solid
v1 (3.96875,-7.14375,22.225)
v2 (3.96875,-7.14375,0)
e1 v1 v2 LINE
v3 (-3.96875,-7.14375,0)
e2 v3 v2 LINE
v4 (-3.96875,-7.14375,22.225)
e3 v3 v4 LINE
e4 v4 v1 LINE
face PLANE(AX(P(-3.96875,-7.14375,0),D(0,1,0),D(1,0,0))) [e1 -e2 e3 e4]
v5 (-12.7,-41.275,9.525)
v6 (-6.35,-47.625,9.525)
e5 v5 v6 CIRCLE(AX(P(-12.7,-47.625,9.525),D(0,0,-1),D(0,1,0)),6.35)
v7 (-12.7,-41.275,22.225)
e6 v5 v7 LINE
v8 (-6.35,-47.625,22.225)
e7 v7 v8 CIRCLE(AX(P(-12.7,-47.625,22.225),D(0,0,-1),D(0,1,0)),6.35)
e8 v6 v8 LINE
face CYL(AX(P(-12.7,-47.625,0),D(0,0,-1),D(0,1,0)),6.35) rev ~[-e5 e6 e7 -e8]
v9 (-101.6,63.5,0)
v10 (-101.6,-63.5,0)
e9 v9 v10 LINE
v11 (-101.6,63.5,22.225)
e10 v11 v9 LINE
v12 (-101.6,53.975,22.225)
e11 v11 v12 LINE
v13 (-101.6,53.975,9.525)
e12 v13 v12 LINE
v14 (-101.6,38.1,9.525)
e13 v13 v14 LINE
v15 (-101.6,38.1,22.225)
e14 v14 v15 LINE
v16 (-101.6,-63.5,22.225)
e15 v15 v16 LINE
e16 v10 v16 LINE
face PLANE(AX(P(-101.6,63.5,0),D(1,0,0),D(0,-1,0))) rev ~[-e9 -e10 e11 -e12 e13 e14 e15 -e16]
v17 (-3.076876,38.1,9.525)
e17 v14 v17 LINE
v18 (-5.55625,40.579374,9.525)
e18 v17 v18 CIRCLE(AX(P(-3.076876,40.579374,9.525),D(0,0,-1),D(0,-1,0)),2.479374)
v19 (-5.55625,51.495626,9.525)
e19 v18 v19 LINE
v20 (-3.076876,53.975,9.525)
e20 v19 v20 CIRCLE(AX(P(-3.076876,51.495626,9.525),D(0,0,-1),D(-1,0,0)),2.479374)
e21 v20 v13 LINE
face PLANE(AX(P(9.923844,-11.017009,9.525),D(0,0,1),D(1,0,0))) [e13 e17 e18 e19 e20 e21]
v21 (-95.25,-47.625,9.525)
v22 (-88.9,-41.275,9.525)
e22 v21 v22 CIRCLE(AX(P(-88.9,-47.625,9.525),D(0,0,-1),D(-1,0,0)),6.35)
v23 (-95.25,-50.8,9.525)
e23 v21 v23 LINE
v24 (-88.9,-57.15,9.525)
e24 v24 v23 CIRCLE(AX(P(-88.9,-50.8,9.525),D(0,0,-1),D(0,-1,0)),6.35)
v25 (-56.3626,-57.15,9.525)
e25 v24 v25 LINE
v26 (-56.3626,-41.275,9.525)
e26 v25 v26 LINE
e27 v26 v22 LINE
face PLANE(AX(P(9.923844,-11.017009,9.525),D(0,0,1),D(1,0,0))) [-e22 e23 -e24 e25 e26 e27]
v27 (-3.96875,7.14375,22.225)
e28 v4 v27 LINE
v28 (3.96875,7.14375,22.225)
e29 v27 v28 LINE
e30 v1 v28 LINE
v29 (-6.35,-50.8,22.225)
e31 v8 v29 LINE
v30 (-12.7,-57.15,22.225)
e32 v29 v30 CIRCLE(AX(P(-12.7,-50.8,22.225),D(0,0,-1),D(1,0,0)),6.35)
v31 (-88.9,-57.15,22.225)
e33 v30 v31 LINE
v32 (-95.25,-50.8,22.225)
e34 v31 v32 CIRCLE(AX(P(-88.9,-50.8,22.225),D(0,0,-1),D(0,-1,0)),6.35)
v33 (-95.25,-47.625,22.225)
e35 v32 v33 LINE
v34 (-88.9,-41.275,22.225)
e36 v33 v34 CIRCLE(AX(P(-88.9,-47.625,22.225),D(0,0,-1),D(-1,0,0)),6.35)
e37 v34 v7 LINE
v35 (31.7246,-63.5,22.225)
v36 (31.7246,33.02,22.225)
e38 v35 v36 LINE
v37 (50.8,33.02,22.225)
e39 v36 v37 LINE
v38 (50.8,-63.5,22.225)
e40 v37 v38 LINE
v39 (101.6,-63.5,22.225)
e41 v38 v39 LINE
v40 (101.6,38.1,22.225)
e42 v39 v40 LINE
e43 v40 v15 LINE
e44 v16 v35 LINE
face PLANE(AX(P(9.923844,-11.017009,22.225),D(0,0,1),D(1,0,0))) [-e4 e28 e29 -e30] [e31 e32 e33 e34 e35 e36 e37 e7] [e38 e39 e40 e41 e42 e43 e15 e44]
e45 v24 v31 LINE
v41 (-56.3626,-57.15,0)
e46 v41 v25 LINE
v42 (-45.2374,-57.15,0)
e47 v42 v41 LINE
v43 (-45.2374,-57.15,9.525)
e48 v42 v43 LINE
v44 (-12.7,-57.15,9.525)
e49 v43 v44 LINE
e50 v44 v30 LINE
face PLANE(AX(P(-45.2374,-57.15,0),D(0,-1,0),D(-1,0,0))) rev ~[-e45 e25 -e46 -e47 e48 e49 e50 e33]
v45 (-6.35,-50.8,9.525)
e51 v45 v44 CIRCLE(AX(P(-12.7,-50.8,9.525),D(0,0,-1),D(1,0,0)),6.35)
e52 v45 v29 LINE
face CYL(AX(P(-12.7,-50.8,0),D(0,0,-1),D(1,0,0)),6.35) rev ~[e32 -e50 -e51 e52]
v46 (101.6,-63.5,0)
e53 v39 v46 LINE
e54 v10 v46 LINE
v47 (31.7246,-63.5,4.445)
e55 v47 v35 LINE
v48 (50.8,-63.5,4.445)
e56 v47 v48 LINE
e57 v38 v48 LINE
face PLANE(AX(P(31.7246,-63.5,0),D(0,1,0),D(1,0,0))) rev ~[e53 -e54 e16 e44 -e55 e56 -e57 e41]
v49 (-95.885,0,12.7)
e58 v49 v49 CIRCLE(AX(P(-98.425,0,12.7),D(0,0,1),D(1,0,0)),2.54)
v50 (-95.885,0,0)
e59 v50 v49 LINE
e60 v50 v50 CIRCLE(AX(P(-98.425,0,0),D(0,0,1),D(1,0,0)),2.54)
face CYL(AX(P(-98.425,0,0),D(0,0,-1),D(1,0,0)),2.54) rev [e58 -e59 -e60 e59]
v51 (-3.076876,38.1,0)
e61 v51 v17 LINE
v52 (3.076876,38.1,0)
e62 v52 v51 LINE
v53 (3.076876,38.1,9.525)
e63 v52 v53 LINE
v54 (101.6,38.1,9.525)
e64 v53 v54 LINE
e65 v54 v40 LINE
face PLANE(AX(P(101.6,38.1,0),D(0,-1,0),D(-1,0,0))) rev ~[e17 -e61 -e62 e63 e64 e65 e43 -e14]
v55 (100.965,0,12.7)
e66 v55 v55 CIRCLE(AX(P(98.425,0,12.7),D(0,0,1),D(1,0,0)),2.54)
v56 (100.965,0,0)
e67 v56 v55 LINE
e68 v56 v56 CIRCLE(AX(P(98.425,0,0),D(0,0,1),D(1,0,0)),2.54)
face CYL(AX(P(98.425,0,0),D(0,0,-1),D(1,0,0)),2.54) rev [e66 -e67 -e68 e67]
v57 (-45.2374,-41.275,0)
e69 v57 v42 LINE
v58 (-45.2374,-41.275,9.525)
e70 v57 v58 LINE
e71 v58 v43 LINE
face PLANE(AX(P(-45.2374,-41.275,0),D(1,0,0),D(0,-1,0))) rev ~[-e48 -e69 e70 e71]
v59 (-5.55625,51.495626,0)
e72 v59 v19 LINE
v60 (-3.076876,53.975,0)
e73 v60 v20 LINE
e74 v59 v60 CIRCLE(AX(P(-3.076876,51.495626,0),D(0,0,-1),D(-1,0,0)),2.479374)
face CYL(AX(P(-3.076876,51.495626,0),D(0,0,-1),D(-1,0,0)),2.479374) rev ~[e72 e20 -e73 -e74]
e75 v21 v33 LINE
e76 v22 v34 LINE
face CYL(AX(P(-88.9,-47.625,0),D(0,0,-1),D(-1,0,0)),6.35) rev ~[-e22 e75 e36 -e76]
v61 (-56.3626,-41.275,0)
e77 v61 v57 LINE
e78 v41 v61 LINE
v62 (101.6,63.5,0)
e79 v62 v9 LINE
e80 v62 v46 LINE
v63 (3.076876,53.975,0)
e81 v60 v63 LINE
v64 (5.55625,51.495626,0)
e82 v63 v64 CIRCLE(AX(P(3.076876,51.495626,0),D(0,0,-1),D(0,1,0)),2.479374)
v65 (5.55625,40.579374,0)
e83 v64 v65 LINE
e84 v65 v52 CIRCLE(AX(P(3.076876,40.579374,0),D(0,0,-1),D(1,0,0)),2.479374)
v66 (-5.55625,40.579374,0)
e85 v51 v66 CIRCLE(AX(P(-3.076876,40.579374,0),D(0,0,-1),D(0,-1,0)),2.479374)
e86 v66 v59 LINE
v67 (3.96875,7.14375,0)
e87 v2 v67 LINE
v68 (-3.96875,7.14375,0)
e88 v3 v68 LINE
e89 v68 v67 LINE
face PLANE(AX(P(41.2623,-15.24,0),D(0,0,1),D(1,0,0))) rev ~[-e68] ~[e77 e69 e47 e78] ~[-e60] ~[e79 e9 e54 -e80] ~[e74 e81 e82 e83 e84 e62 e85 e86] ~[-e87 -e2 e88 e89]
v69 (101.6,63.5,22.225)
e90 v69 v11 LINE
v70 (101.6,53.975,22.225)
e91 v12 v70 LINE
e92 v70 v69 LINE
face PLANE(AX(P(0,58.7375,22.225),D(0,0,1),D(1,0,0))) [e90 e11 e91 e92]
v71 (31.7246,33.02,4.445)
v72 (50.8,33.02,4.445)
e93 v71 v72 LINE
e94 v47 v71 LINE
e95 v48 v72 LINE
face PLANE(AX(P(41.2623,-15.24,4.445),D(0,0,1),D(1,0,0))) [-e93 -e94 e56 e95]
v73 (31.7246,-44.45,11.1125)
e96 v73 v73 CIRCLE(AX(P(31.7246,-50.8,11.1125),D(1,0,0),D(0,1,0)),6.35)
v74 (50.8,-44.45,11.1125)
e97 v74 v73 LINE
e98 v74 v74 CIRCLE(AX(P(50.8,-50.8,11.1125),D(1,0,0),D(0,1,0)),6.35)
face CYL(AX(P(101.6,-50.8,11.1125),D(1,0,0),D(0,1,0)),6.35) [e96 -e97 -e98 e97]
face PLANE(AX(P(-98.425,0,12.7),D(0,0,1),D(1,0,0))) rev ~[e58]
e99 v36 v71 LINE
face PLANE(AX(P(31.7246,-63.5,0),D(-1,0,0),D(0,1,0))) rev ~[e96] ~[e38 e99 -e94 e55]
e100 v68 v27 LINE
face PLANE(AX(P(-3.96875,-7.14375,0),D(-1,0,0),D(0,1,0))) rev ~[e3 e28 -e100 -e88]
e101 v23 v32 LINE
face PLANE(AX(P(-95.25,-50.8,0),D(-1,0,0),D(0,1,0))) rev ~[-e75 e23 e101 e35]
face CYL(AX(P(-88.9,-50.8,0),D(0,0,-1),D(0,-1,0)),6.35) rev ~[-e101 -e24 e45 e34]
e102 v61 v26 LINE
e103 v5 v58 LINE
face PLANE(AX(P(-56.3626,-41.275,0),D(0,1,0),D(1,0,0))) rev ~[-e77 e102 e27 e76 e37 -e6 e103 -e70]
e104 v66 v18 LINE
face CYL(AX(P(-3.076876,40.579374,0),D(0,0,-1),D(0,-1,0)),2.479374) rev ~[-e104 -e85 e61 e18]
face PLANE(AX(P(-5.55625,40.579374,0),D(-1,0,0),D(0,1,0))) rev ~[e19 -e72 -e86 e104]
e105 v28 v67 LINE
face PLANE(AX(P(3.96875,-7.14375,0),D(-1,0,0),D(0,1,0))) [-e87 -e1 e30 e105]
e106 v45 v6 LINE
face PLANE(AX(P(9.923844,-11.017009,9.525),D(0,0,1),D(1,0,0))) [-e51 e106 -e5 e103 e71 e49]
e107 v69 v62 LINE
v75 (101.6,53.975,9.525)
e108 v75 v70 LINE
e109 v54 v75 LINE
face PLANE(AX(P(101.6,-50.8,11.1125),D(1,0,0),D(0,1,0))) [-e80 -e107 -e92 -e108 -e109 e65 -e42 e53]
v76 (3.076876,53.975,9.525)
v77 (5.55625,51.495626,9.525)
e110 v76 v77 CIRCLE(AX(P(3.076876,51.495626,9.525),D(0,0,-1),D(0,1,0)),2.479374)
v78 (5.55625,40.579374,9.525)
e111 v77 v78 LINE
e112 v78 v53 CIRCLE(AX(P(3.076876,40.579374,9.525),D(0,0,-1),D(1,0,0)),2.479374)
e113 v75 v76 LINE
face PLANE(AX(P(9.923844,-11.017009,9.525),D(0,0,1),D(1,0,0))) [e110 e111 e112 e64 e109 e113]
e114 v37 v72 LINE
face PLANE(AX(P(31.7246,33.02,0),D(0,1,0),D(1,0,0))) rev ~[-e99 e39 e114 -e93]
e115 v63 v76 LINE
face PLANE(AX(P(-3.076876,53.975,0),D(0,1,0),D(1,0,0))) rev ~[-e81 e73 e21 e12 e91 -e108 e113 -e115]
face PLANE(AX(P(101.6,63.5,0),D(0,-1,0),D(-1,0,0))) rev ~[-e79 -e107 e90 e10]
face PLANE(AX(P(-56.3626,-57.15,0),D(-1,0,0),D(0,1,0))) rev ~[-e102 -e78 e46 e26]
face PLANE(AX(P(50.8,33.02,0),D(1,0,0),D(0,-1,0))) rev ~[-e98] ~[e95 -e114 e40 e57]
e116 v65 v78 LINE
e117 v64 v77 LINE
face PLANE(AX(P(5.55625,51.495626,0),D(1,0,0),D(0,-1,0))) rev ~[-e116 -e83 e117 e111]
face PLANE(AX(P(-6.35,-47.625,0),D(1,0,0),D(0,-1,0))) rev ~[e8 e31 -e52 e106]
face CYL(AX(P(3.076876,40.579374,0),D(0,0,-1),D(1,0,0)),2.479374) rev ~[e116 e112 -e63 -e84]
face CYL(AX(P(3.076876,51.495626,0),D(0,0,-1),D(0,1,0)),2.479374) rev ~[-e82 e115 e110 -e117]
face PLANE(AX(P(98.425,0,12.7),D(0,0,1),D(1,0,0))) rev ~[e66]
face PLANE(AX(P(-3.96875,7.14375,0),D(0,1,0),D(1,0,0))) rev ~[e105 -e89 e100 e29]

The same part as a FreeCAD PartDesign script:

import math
import FreeCAD as App
import Part
import Sketcher
Q = App.Units.Quantity


def add_polygon(sketch, points):
    """Adds a closed chain of lines whose ends are joined by coincident constraints."""
    first, n = sketch.GeometryCount, len(points)
    for a, b in zip(points, points[1:] + points[:1]):
        sketch.addGeometry(Part.LineSegment(App.Vector(*a, 0), App.Vector(*b, 0)), False)
    for i in range(n):
        sketch.addConstraint(Sketcher.Constraint("Coincident", first + i, 2, first + (i + 1) % n, 1))

doc = App.newDocument("Part")
body = doc.addObject("PartDesign::Body", "Body")

# Sketch on XY plane
sketch1 = body.newObject("Sketcher::SketchObject", "Sketch")
sketch1.AttachmentSupport = (doc.getObject("XY_Plane"), [""])
sketch1.MapMode = "FlatFace"
add_polygon(sketch1, [(-101.6, -63.5), (31.7, -63.5), (31.7, 33), (50.8, 33), (50.8, -63.5), (101.6, -63.5), (101.6, 63.5), (-101.6, 63.5)])  # lines 0-7
sketch1.addGeometry(Part.LineSegment(App.Vector(3.1, 38.1, 0), App.Vector(-3.1, 38.1, 0)), False)  # 8
sketch1.addGeometry(Part.ArcOfCircle(Part.Circle(App.Vector(-3.1, 40.6, 0), App.Vector(0, 0, 1), 2.5), math.radians(180), math.radians(270)), False)  # 9
sketch1.addGeometry(Part.LineSegment(App.Vector(-5.6, 40.6, 0), App.Vector(-5.6, 51.5, 0)), False)  # 10
sketch1.addGeometry(Part.ArcOfCircle(Part.Circle(App.Vector(-3.1, 51.5, 0), App.Vector(0, 0, 1), 2.5), math.radians(90), math.radians(180)), False)  # 11
sketch1.addGeometry(Part.LineSegment(App.Vector(-3.1, 54, 0), App.Vector(3.1, 54, 0)), False)  # 12
sketch1.addGeometry(Part.ArcOfCircle(Part.Circle(App.Vector(3.1, 51.5, 0), App.Vector(0, 0, 1), 2.5), math.radians(0), math.radians(90)), False)  # 13
sketch1.addGeometry(Part.LineSegment(App.Vector(5.6, 51.5, 0), App.Vector(5.6, 40.6, 0)), False)  # 14
sketch1.addGeometry(Part.ArcOfCircle(Part.Circle(App.Vector(3.1, 40.6, 0), App.Vector(0, 0, 1), 2.5), math.radians(-90), math.radians(0)), False)  # 15
add_polygon(sketch1, [(-45.2, -57.1), (-56.4, -57.1), (-56.4, -41.3), (-45.2, -41.3)])  # lines 16-19
add_polygon(sketch1, [(4, -7.1), (-4, -7.1), (-4, 7.1), (4, 7.1)])  # lines 20-23
sketch1.addConstraint([
    Sketcher.Constraint("Tangent", 8, 2, 9, 2),
    Sketcher.Constraint("Tangent", 9, 1, 10, 1),
    Sketcher.Constraint("Tangent", 10, 2, 11, 2),
    Sketcher.Constraint("Tangent", 11, 1, 12, 1),
    Sketcher.Constraint("Tangent", 12, 2, 13, 2),
    Sketcher.Constraint("Tangent", 13, 1, 14, 1),
    Sketcher.Constraint("Tangent", 14, 2, 15, 2),
    Sketcher.Constraint("Tangent", 15, 1, 8, 1),
    Sketcher.Constraint("Horizontal", 0),
    Sketcher.Constraint("Vertical", 1),
    Sketcher.Constraint("Horizontal", 2),
    Sketcher.Constraint("Vertical", 3),
    Sketcher.Constraint("Horizontal", 4),
    Sketcher.Constraint("Vertical", 5),
    Sketcher.Constraint("Horizontal", 6),
    Sketcher.Constraint("Vertical", 7),
    Sketcher.Constraint("Horizontal", 8),
    Sketcher.Constraint("Vertical", 10),
    Sketcher.Constraint("Horizontal", 12),
    Sketcher.Constraint("Vertical", 14),
    Sketcher.Constraint("Horizontal", 16),
    Sketcher.Constraint("Vertical", 17),
    Sketcher.Constraint("Horizontal", 18),
    Sketcher.Constraint("Vertical", 19),
    Sketcher.Constraint("Horizontal", 20),
    Sketcher.Constraint("Vertical", 21),
    Sketcher.Constraint("Horizontal", 22),
    Sketcher.Constraint("Vertical", 23),
    Sketcher.Constraint("Equal", 9, 11),
    Sketcher.Constraint("Equal", 11, 13),
    Sketcher.Constraint("Equal", 13, 15),
    Sketcher.Constraint("Symmetric", 4, 2, 6, 2, -1, 1),
    Sketcher.Constraint("Symmetric", 20, 2, 22, 2, -1, 1),
    Sketcher.Constraint("Horizontal", 0, 2, 3, 2),
    Sketcher.Constraint("DistanceX", 4, 1, 4, 2, Q("2 in")),
    Sketcher.Constraint("DistanceX", 6, 2, 6, 1, Q("8 in")),
    Sketcher.Constraint("DistanceY", 5, 1, 5, 2, Q("5 in")),
    Sketcher.Constraint("DistanceY", 1, 1, 1, 2, Q("3.8 in")),
    Sketcher.Constraint("DistanceY", -1, 1, 8, 2, Q("1.5 in")),
    Sketcher.Constraint("DistanceX", 0, 1, 0, 2, Q("5.249 in")),
    Sketcher.Constraint("DistanceX", 16, 2, 16, 1, Q("0.438 in")),
    Sketcher.Constraint("DistanceX", 20, 2, 20, 1, Q("0.3125 in")),
    Sketcher.Constraint("DistanceY", 17, 1, 17, 2, Q("0.625 in")),
    Sketcher.Constraint("DistanceY", 21, 1, 21, 2, Q("0.5625 in")),
    Sketcher.Constraint("DistanceY", 16, 2, -1, 1, Q("2.25 in")),
    Sketcher.Constraint("DistanceX", 18, 2, 0, 2, Q("3.03 in")),
    Sketcher.Constraint("DistanceX", 9, 1, -1, 1, Q("0.21875 in")),
    Sketcher.Constraint("DistanceY", -1, 1, 11, 1, Q("2.125 in")),
    Sketcher.Constraint("DistanceX", -1, 1, 13, 1, Q("0.21875 in")),
    Sketcher.Constraint("Radius", 9, Q("2.479374 mm")),
])
pad1 = body.newObject("PartDesign::Pad", "Pad")
pad1.Profile = sketch1
pad1.Length = Q("0.375 in")

# Sketch on XY plane
sketch2 = body.newObject("Sketcher::SketchObject", "Sketch001")
sketch2.AttachmentSupport = (doc.getObject("XY_Plane"), [""])
sketch2.MapMode = "FlatFace"
add_polygon(sketch2, [(-101.6, 63.5), (-101.6, 54), (101.6, 54), (101.6, 63.5)])  # lines 0-3
add_polygon(sketch2, [(-101.6, 38.1), (-101.6, -63.5), (31.7, -63.5), (31.7, 33), (50.8, 33), (50.8, -63.5), (101.6, -63.5), (101.6, 38.1)])  # lines 4-11
sketch2.addGeometry(Part.LineSegment(App.Vector(-12.7, -57.1, 0), App.Vector(-88.9, -57.1, 0)), False)  # 12
sketch2.addGeometry(Part.ArcOfCircle(Part.Circle(App.Vector(-88.9, -50.8, 0), App.Vector(0, 0, 1), 6.3), math.radians(180), math.radians(270)), False)  # 13
sketch2.addGeometry(Part.LineSegment(App.Vector(-95.2, -50.8, 0), App.Vector(-95.2, -47.6, 0)), False)  # 14
sketch2.addGeometry(Part.ArcOfCircle(Part.Circle(App.Vector(-88.9, -47.6, 0), App.Vector(0, 0, 1), 6.3), math.radians(90), math.radians(180)), False)  # 15
sketch2.addGeometry(Part.LineSegment(App.Vector(-88.9, -41.3, 0), App.Vector(-12.7, -41.3, 0)), False)  # 16
sketch2.addGeometry(Part.ArcOfCircle(Part.Circle(App.Vector(-12.7, -47.6, 0), App.Vector(0, 0, 1), 6.3), math.radians(0), math.radians(90)), False)  # 17
sketch2.addGeometry(Part.LineSegment(App.Vector(-6.3, -47.6, 0), App.Vector(-6.3, -50.8, 0)), False)  # 18
sketch2.addGeometry(Part.ArcOfCircle(Part.Circle(App.Vector(-12.7, -50.8, 0), App.Vector(0, 0, 1), 6.3), math.radians(-90), math.radians(0)), False)  # 19
add_polygon(sketch2, [(4, -7.1), (-4, -7.1), (-4, 7.1), (4, 7.1)])  # lines 20-23
sketch2.addConstraint([
    Sketcher.Constraint("Tangent", 12, 2, 13, 2),
    Sketcher.Constraint("Tangent", 13, 1, 14, 1),
    Sketcher.Constraint("Tangent", 14, 2, 15, 2),
    Sketcher.Constraint("Tangent", 15, 1, 16, 1),
    Sketcher.Constraint("Tangent", 16, 2, 17, 2),
    Sketcher.Constraint("Tangent", 17, 1, 18, 1),
    Sketcher.Constraint("Tangent", 18, 2, 19, 2),
    Sketcher.Constraint("Tangent", 19, 1, 12, 1),
    Sketcher.Constraint("Vertical", 0),
    Sketcher.Constraint("Horizontal", 1),
    Sketcher.Constraint("Vertical", 2),
    Sketcher.Constraint("Horizontal", 3),
    Sketcher.Constraint("Vertical", 4),
    Sketcher.Constraint("Horizontal", 5),
    Sketcher.Constraint("Vertical", 6),
    Sketcher.Constraint("Horizontal", 7),
    Sketcher.Constraint("Vertical", 8),
    Sketcher.Constraint("Horizontal", 9),
    Sketcher.Constraint("Vertical", 10),
    Sketcher.Constraint("Horizontal", 11),
    Sketcher.Constraint("Horizontal", 12),
    Sketcher.Constraint("Vertical", 14),
    Sketcher.Constraint("Horizontal", 16),
    Sketcher.Constraint("Vertical", 18),
    Sketcher.Constraint("Horizontal", 20),
    Sketcher.Constraint("Vertical", 21),
    Sketcher.Constraint("Horizontal", 22),
    Sketcher.Constraint("Vertical", 23),
    Sketcher.Constraint("Equal", 13, 15),
    Sketcher.Constraint("Equal", 15, 17),
    Sketcher.Constraint("Equal", 17, 19),
    Sketcher.Constraint("Symmetric", 2, 2, 4, 2, -1, 1),
    Sketcher.Constraint("Symmetric", 3, 2, 9, 2, -1, 1),
    Sketcher.Constraint("Symmetric", 20, 2, 22, 2, -1, 1),
    Sketcher.Constraint("Vertical", 3, 2, 4, 2),
    Sketcher.Constraint("DistanceX", 1, 1, 1, 2, Q("8 in")),
    Sketcher.Constraint("DistanceX", 9, 1, 9, 2, Q("2 in")),
    Sketcher.Constraint("DistanceX", 12, 2, 12, 1, Q("3 in")),
    Sketcher.Constraint("DistanceY", 4, 2, 4, 1, Q("4 in")),
    Sketcher.Constraint("Radius", 13, Q("0.25 in")),
    Sketcher.Constraint("DistanceY", 6, 1, 6, 2, Q("3.8 in")),
    Sketcher.Constraint("DistanceY", 13, 3, -1, 1, Q("2 in")),
    Sketcher.Constraint("DistanceY", 15, 3, 0, 2, Q("4 in")),
    Sketcher.Constraint("DistanceY", 10, 2, 2, 2, Q("1 in")),
    Sketcher.Constraint("DistanceX", 13, 3, -1, 1, Q("3.5 in")),
    Sketcher.Constraint("DistanceX", 5, 1, 5, 2, Q("5.249 in")),
    Sketcher.Constraint("DistanceX", 20, 2, 20, 1, Q("0.3125 in")),
    Sketcher.Constraint("DistanceY", 0, 2, 0, 1, Q("0.375 in")),
    Sketcher.Constraint("DistanceY", 21, 1, 21, 2, Q("0.5625 in")),
])
pad2 = body.newObject("PartDesign::Pad", "Pad001")
pad2.Profile = sketch2
pad2.Length = Q("0.875 in")

# Sketch on YZ plane
sketch3 = body.newObject("Sketcher::SketchObject", "Sketch002")
sketch3.AttachmentSupport = (doc.getObject("YZ_Plane"), [""])
sketch3.MapMode = "FlatFace"
sketch3.AttachmentOffset = App.Placement(App.Vector(0, 0, 4 * 25.4), App.Rotation())
sketch3.addGeometry(Part.Circle(App.Vector(-51, 11, 0), App.Vector(0, 0, 1), 6), False)
sketch3.addConstraint([
    Sketcher.Constraint("Diameter", 0, Q("0.5 in")),
    Sketcher.Constraint("DistanceX", 0, 3, -1, 1, Q("2 in")),
    Sketcher.Constraint("DistanceY", -1, 1, 0, 3, Q("0.4375 in")),
])
pad3 = body.newObject("PartDesign::Pad", "Pad002")
pad3.Profile = sketch3
pad3.Length = Q("3.17 in")
pad3.Reversed = True

# Sketch on XY plane
sketch4 = body.newObject("Sketcher::SketchObject", "Sketch003")
sketch4.AttachmentSupport = (doc.getObject("XY_Plane"), [""])
sketch4.MapMode = "FlatFace"
add_polygon(sketch4, [(32, 33), (32, -64), (51, -64), (51, 33)])  # lines 0-3
sketch4.addConstraint([
    Sketcher.Constraint("Vertical", 0),
    Sketcher.Constraint("Horizontal", 1),
    Sketcher.Constraint("Vertical", 2),
    Sketcher.Constraint("Horizontal", 3),
    Sketcher.Constraint("DistanceY", 0, 2, 0, 1, Q("3.8 in")),
    Sketcher.Constraint("DistanceX", -1, 1, 1, 2, Q("2 in")),
    Sketcher.Constraint("DistanceY", 0, 2, -1, 1, Q("2.5 in")),
    Sketcher.Constraint("DistanceX", 1, 1, 1, 2, Q("0.751 in")),
])
pad4 = body.newObject("PartDesign::Pad", "Pad003")
pad4.Profile = sketch4
pad4.Length = Q("0.175 in")

# Sketch on XY plane
sketch5 = body.newObject("Sketcher::SketchObject", "Sketch004")
sketch5.AttachmentSupport = (doc.getObject("XY_Plane"), [""])
sketch5.MapMode = "FlatFace"
sketch5.addGeometry([
    Part.Circle(App.Vector(-98.4, 0, 0), App.Vector(0, 0, 1), 2.5),
    Part.Circle(App.Vector(98.4, 0, 0), App.Vector(0, 0, 1), 2.5),
], False)
sketch5.addConstraint([
    Sketcher.Constraint("Equal", 0, 1),
    Sketcher.Constraint("Symmetric", 0, 3, 1, 3, -1, 1),
    Sketcher.Constraint("PointOnObject", 0, 3, -1),
    Sketcher.Constraint("Diameter", 0, Q("0.2 in")),
    Sketcher.Constraint("DistanceX", 0, 3, 1, 3, Q("7.75 in")),
])
pocket1 = body.newObject("PartDesign::Pocket", "Pocket")
pocket1.Profile = sketch5
pocket1.Length = Q("0.5 in")
pocket1.Reversed = True

doc.recompute()
